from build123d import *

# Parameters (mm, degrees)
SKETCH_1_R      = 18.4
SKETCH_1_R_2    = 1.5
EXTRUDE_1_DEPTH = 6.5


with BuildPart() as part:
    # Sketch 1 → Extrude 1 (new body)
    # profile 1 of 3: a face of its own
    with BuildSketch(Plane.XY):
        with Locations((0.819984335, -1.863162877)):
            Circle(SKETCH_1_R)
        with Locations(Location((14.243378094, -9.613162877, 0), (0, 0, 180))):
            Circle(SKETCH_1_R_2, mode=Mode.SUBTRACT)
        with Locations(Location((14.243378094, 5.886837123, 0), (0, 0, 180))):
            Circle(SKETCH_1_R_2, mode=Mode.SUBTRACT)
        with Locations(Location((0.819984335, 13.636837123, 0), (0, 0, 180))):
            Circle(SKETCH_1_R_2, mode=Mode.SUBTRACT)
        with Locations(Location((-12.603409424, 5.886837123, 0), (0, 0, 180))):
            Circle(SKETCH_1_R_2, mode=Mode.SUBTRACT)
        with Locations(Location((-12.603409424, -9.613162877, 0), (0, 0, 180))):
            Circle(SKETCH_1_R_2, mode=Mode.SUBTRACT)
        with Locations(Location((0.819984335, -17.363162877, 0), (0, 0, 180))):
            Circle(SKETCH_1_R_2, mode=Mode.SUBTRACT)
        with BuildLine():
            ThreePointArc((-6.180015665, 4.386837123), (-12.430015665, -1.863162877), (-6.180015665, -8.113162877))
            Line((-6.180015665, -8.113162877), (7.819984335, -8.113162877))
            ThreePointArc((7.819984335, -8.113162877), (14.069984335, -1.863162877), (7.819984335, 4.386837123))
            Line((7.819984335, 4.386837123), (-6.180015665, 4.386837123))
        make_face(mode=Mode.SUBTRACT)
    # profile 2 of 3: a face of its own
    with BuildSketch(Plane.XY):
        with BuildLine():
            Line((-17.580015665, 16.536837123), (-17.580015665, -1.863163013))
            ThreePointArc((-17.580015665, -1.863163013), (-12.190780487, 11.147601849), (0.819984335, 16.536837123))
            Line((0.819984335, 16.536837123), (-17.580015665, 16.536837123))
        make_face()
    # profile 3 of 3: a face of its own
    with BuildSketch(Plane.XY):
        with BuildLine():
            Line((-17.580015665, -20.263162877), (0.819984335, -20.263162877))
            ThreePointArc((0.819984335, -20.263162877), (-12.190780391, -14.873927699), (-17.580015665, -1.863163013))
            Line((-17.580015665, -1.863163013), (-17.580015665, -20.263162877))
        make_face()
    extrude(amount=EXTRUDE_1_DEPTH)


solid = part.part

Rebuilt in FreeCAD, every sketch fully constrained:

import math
import FreeCAD as App
import Part
import Sketcher
from FreeCAD import Vector

doc = App.newDocument("Part")
body = doc.addObject("PartDesign::Body", "Body")

# Sketch on XY plane
sketch1 = doc.addObject("Sketcher::SketchObject", "Sketch")
body.addObject(sketch1)
sketch1.AttachmentSupport = (doc.XY_Plane, [""])
sketch1.MapMode = "FlatFace"
sketch1.addGeometry([
    Part.LineSegment(Vector(0.819984, 16.536837, 0), Vector(-17.580016, 16.536837, 0)),  # 0
    Part.LineSegment(Vector(-17.580016, 16.536837, 0), Vector(-17.580016, -20.263163, 0)),  # 1
    Part.LineSegment(Vector(-17.580016, -20.263163, 0), Vector(0.819984, -20.263163, 0)),  # 2
    Part.ArcOfCircle(Part.Circle(Vector(0.819984, -1.863163, 0), Vector(0, 0, 1), 18.4), math.radians(-90), math.radians(90)),  # 3
    Part.Circle(Vector(-12.603409, -9.613163, 0), Vector(0, 0, 1), 1.5),  # 4
    Part.Circle(Vector(0.819984, -17.363163, 0), Vector(0, 0, 1), 1.5),  # 5
    Part.Circle(Vector(14.243378, -9.613163, 0), Vector(0, 0, 1), 1.5),  # 6
    Part.Circle(Vector(-12.603409, 5.886837, 0), Vector(0, 0, 1), 1.5),  # 7
    Part.ArcOfCircle(Part.Circle(Vector(-6.180016, -1.863163, 0), Vector(0, 0, 1), 6.25), math.radians(90), math.radians(270)),  # 8
    Part.LineSegment(Vector(-6.180016, 4.386837, 0), Vector(7.819984, 4.386837, 0)),  # 9
    Part.ArcOfCircle(Part.Circle(Vector(7.819984, -1.863163, 0), Vector(0, 0, 1), 6.25), math.radians(-90), math.radians(90)),  # 10
    Part.LineSegment(Vector(7.819984, -8.113163, 0), Vector(-6.180016, -8.113163, 0)),  # 11
    Part.Circle(Vector(14.243378, 5.886837, 0), Vector(0, 0, 1), 1.5),  # 12
    Part.Circle(Vector(0.819984, 13.636837, 0), Vector(0, 0, 1), 1.5),  # 13
], False)
sketch1.addConstraint([
    Sketcher.Constraint("Coincident", 0, 2, 1, 1),
    Sketcher.Constraint("Coincident", 1, 2, 2, 1),
    Sketcher.Constraint("Tangent", 2, 2, 3, 1),
    Sketcher.Constraint("Tangent", 3, 2, 0, 1),
    Sketcher.Constraint("Tangent", 8, 1, 9, 1),
    Sketcher.Constraint("Tangent", 9, 2, 10, 2),
    Sketcher.Constraint("Tangent", 10, 1, 11, 1),
    Sketcher.Constraint("Tangent", 11, 2, 8, 2),
    Sketcher.Constraint("Horizontal", 0),
    Sketcher.Constraint("Vertical", 1),
    Sketcher.Constraint("Horizontal", 2),
    Sketcher.Constraint("Horizontal", 9),
    Sketcher.Constraint("Horizontal", 11),
    Sketcher.Constraint("Equal", 4, 5),
    Sketcher.Constraint("Equal", 5, 6),
    Sketcher.Constraint("Equal", 6, 7),
    Sketcher.Constraint("Equal", 7, 12),
    Sketcher.Constraint("Equal", 12, 13),
    Sketcher.Constraint("Horizontal", 4, 3, 6, 3),
    Sketcher.Constraint("Horizontal", 3, 3, 8, 3),
    Sketcher.Constraint("Horizontal", 7, 3, 12, 3),
    Sketcher.Constraint("Vertical", 3, 3, 5, 3),
    Sketcher.Constraint("Vertical", 4, 3, 7, 3),
    Sketcher.Constraint("Vertical", 6, 3, 12, 3),
    Sketcher.Constraint("Vertical", 5, 3, 13, 3),
    Sketcher.Constraint("Diameter", 4, 3.0),
    Sketcher.Constraint("Radius", 3, 18.4),
    Sketcher.Constraint("DistanceX", 9, 1, 9, 2, 14.0),
    Sketcher.Constraint("Radius", 8, 6.25),
    Sketcher.Constraint("DistanceX", 0, 2, 0, 1, 18.4),
    Sketcher.Constraint("DistanceX", 8, 3, 3, 3, 7.0),
    Sketcher.Constraint("DistanceY", 5, 3, 3, 3, 15.5),
    Sketcher.Constraint("DistanceY", 4, 3, 7, 3, 15.5),
    Sketcher.Constraint("DistanceY", 3, 3, 13, 3, 15.5),
    Sketcher.Constraint("DistanceY", 8, 1, 7, 3, 1.5),
    Sketcher.Constraint("DistanceX", 4, 3, -1, 1, 12.603409),
    Sketcher.Constraint("DistanceX", -1, 1, 6, 3, 14.243378),
    Sketcher.Constraint("DistanceX", -1, 1, 3, 3, 0.819984),
    Sketcher.Constraint("DistanceY", 3, 3, -1, 1, 1.863163),
])
pad1 = doc.addObject("PartDesign::Pad", "Pad")
body.addObject(pad1)
pad1.Profile = sketch1
pad1.Length = 6.5

doc.recompute()
